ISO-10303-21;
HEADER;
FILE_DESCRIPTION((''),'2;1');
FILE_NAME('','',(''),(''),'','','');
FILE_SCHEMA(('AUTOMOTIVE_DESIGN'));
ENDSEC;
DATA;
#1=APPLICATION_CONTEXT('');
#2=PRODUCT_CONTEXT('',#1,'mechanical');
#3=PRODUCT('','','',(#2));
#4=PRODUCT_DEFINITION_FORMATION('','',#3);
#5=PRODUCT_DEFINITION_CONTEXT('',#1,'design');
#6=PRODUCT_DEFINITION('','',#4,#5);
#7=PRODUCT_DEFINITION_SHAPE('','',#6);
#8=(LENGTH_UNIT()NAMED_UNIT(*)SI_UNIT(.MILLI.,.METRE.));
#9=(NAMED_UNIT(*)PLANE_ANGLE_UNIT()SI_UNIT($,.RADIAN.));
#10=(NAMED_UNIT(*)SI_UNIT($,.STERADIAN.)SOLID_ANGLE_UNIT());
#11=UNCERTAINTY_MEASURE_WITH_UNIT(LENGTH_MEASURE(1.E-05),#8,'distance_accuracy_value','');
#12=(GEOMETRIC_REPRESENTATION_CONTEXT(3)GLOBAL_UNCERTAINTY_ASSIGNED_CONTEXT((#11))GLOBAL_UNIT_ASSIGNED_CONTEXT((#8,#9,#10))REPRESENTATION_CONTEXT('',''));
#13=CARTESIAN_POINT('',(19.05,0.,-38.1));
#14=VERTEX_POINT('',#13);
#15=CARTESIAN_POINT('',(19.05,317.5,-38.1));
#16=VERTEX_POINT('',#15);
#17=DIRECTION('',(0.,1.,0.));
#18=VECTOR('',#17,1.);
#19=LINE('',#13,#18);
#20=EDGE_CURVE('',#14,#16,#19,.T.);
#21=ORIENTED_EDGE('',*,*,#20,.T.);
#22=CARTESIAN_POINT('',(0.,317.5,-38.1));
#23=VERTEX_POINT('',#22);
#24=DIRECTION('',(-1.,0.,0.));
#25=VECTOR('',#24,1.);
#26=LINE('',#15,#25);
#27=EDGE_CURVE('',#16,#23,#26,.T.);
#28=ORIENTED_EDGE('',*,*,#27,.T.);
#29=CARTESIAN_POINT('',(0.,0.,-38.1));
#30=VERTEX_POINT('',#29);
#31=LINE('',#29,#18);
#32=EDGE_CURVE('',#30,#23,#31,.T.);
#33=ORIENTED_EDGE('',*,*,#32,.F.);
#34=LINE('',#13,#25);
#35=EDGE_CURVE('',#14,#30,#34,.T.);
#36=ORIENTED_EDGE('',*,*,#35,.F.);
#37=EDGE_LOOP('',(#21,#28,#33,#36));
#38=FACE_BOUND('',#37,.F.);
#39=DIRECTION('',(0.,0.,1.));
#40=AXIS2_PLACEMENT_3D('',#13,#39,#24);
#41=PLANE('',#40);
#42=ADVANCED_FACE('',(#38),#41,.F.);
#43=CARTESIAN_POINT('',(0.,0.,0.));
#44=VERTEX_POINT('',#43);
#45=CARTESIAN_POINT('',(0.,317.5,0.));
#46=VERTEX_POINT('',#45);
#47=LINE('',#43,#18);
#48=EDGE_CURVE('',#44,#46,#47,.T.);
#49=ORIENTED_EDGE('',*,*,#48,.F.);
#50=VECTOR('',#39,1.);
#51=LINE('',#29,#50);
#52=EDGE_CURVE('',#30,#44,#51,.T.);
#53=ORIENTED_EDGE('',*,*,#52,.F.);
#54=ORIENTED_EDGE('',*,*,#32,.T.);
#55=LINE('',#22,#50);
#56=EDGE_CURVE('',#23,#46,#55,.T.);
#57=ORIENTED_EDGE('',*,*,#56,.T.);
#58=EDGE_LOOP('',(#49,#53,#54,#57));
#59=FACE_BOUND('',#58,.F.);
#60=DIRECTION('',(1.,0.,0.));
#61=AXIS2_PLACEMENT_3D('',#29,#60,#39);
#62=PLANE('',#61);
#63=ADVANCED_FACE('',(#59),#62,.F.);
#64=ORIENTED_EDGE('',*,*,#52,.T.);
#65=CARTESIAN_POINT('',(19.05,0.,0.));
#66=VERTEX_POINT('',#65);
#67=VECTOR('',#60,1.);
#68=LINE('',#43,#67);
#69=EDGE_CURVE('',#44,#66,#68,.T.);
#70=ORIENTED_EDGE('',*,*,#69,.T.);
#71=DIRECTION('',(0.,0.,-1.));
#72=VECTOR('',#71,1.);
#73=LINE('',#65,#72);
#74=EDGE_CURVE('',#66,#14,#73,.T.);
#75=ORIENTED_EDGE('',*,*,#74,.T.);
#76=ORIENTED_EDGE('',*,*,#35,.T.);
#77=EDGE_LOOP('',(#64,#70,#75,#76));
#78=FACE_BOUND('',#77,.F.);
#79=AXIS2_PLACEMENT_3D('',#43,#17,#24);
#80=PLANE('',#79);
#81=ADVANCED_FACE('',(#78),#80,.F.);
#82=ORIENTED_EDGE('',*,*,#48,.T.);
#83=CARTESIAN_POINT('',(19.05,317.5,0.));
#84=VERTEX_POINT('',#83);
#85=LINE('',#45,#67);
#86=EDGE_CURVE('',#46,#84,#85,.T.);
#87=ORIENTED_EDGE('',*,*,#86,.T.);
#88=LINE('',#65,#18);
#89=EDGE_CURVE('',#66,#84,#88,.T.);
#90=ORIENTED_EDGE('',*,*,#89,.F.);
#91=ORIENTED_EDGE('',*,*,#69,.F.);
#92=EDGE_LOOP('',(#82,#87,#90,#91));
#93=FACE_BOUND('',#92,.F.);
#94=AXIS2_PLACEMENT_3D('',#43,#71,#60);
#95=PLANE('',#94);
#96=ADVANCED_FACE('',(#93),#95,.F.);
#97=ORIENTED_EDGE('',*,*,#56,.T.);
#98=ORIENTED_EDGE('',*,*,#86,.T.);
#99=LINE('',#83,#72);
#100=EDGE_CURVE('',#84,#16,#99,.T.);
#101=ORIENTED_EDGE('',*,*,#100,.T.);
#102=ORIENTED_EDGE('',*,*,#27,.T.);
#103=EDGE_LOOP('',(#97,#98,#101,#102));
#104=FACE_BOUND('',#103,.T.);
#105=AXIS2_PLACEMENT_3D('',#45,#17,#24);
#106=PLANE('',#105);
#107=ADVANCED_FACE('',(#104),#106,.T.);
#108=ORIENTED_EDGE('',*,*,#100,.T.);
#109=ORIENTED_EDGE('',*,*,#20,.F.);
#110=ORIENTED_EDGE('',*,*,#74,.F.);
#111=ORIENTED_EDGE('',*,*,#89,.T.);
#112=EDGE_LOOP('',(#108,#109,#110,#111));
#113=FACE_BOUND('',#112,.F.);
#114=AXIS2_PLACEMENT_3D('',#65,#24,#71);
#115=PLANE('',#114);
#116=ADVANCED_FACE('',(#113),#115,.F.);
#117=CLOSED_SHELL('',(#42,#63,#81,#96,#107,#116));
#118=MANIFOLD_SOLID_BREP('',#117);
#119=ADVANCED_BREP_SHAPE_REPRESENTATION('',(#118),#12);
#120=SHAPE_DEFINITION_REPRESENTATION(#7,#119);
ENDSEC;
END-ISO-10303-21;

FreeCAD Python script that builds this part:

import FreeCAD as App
import Part
import Sketcher

V = App.Vector
Q = App.Units.Quantity


def add_polygon(sketch, points):
    """Adds a closed chain of lines whose ends are joined by coincident constraints."""
    first, n = sketch.GeometryCount, len(points)
    for a, b in zip(points, points[1:] + points[:1]):
        sketch.addGeometry(Part.LineSegment(App.Vector(*a, 0), App.Vector(*b, 0)), False)
    for i in range(n):
        sketch.addConstraint(Sketcher.Constraint("Coincident", first + i, 2, first + (i + 1) % n, 1))

doc = App.newDocument("Part")
body = doc.addObject("PartDesign::Body", "Body")

sketch1 = body.newObject("Sketcher::SketchObject", "Sketch")
sketch1.AttachmentSupport = (doc.getObject("XZ_Plane"), [""])
sketch1.MapMode = "FlatFace"
add_polygon(sketch1, [(0, -38.1), (0, 0), (19.05, 0), (19.05, -38.1)])
sketch1.addConstraint([
    Sketcher.Constraint("Vertical", 0),
    Sketcher.Constraint("Horizontal", 1),
    Sketcher.Constraint("Vertical", 2),
    Sketcher.Constraint("Horizontal", 3),
    Sketcher.Constraint("Coincident", 0, 2, -1, 1),
    Sketcher.Constraint("DistanceY", 0, 1, 0, 2, Q("1.5 in")),
    Sketcher.Constraint("DistanceX", 1, 1, 1, 2, Q("0.75 in")),
])
pad1 = body.newObject("PartDesign::Pad", "Pad")
pad1.Profile = sketch1
pad1.Length = Q("12.5 in")
pad1.Reversed = True

doc.recompute()
